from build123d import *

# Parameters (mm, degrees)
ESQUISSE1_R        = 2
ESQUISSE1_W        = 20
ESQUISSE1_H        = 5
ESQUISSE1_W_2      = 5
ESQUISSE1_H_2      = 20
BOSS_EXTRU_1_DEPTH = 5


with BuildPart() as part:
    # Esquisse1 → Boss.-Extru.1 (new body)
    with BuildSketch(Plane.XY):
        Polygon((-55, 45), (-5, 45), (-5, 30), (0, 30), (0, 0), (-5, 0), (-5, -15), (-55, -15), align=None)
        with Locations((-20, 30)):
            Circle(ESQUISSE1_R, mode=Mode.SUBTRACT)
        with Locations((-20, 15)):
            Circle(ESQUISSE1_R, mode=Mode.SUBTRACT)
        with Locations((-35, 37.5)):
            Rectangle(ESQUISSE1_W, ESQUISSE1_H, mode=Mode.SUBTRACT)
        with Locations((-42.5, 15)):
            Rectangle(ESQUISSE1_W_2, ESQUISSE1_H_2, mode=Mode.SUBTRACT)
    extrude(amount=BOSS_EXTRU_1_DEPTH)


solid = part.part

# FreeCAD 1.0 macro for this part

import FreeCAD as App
import Part
import Sketcher
Q = App.Units.Quantity

doc = App.newDocument("Part")
params = doc.addObject("Spreadsheet::Sheet", "Params")
for row, (alias, value) in enumerate([
    ("sketch1_diameter", "4 mm"),
    ("sketch1_width", "50 mm"),
    ("sketch1_width2", "5 mm"),
    ("sketch1_width3", "20 mm"),
    ("sketch1_height", "60 mm"),
    ("pad1_length", "5 mm"),
], start=1):
    params.set(f"A{row}", alias)
    params.set(f"B{row}", "=" + value)
    params.setAlias(f"B{row}", alias)

body = doc.addObject("PartDesign::Body", "Body")

sketch1 = doc.addObject("Sketcher::SketchObject", "Sketch")
body.addObject(sketch1)
sketch1.AttachmentSupport = (doc.XY_Plane, [""])
sketch1.MapMode = "FlatFace"
sketch1.addGeometry([
    Part.LineSegment(App.Vector(-5, 45, 0), App.Vector(-55, 45, 0)),
    Part.LineSegment(App.Vector(-55, 45, 0), App.Vector(-55, -15, 0)),
    Part.LineSegment(App.Vector(-55, -15, 0), App.Vector(-5, -15, 0)),
    Part.LineSegment(App.Vector(-5, -15, 0), App.Vector(-5, 0, 0)),
    Part.LineSegment(App.Vector(-5, 0, 0), App.Vector(0, 0, 0)),
    Part.LineSegment(App.Vector(0, 0, 0), App.Vector(0, 30, 0)),
    Part.LineSegment(App.Vector(0, 30, 0), App.Vector(-5, 30, 0)),
    Part.LineSegment(App.Vector(-5, 30, 0), App.Vector(-5, 45, 0)),
    Part.Circle(App.Vector(-20, 15, 0), App.Vector(0, 0, 1), 2),
    Part.LineSegment(App.Vector(-45, 5, 0), App.Vector(-45, 25, 0)),
    Part.LineSegment(App.Vector(-45, 25, 0), App.Vector(-40, 25, 0)),
    Part.LineSegment(App.Vector(-40, 25, 0), App.Vector(-40, 5, 0)),
    Part.LineSegment(App.Vector(-40, 5, 0), App.Vector(-45, 5, 0)),
    Part.Circle(App.Vector(-20, 30, 0), App.Vector(0, 0, 1), 2),
    Part.LineSegment(App.Vector(-45, 35, 0), App.Vector(-45, 40, 0)),
    Part.LineSegment(App.Vector(-45, 40, 0), App.Vector(-25, 40, 0)),
    Part.LineSegment(App.Vector(-25, 40, 0), App.Vector(-25, 35, 0)),
    Part.LineSegment(App.Vector(-25, 35, 0), App.Vector(-45, 35, 0)),
], False)
sketch1.addConstraint([
    Sketcher.Constraint("Coincident", 0, 2, 1, 1),
    Sketcher.Constraint("Coincident", 1, 2, 2, 1),
    Sketcher.Constraint("Coincident", 2, 2, 3, 1),
    Sketcher.Constraint("Coincident", 3, 2, 4, 1),
    Sketcher.Constraint("Coincident", 4, 2, 5, 1),
    Sketcher.Constraint("Coincident", 5, 2, 6, 1),
    Sketcher.Constraint("Coincident", 6, 2, 7, 1),
    Sketcher.Constraint("Coincident", 7, 2, 0, 1),
    Sketcher.Constraint("Coincident", 9, 2, 10, 1),
    Sketcher.Constraint("Coincident", 10, 2, 11, 1),
    Sketcher.Constraint("Coincident", 11, 2, 12, 1),
    Sketcher.Constraint("Coincident", 12, 2, 9, 1),
    Sketcher.Constraint("Coincident", 14, 2, 15, 1),
    Sketcher.Constraint("Coincident", 15, 2, 16, 1),
    Sketcher.Constraint("Coincident", 16, 2, 17, 1),
    Sketcher.Constraint("Coincident", 17, 2, 14, 1),
    Sketcher.Constraint("Horizontal", 0),
    Sketcher.Constraint("Vertical", 1),
    Sketcher.Constraint("Horizontal", 2),
    Sketcher.Constraint("Vertical", 3),
    Sketcher.Constraint("Horizontal", 4),
    Sketcher.Constraint("Vertical", 5),
    Sketcher.Constraint("Horizontal", 6),
    Sketcher.Constraint("Vertical", 7),
    Sketcher.Constraint("Vertical", 9),
    Sketcher.Constraint("Horizontal", 10),
    Sketcher.Constraint("Vertical", 11),
    Sketcher.Constraint("Horizontal", 12),
    Sketcher.Constraint("Vertical", 14),
    Sketcher.Constraint("Horizontal", 15),
    Sketcher.Constraint("Vertical", 16),
    Sketcher.Constraint("Horizontal", 17),
    Sketcher.Constraint("Coincident", 4, 2, -1, 1),
    Sketcher.Constraint("Equal", 8, 13),
    Sketcher.Constraint("Horizontal", 13, 3, 5, 2),
    Sketcher.Constraint("Vertical", 8, 3, 13, 3),
    Sketcher.Constraint("Vertical", 3, 2, 6, 2),
    Sketcher.Constraint("Vertical", 12, 2, 14, 2),
    Sketcher.Constraint("Equal", 6, 10),
    Sketcher.Constraint("Equal", 3, 7),
    Sketcher.Constraint("Equal", 17, 9),
    Sketcher.Constraint("Equal", 12, 14),
    Sketcher.Constraint("Diameter", 8, Q("4 mm")),
    Sketcher.Constraint("DistanceX", 0, 2, 0, 1, Q("50 mm")),
    Sketcher.Constraint("DistanceX", 4, 1, 4, 2, Q("5 mm")),
    Sketcher.Constraint("DistanceX", 15, 1, 15, 2, Q("20 mm")),
    Sketcher.Constraint("DistanceY", 1, 2, 1, 1, Q("60 mm")),
    Sketcher.Constraint("DistanceY", 3, 1, 3, 2, Q("15 mm")),
    Sketcher.Constraint("DistanceX", 8, 3, -1, 1, Q("20 mm")),
    Sketcher.Constraint("DistanceY", -1, 1, 8, 3, Q("15 mm")),
    Sketcher.Constraint("DistanceX", 9, 2, -1, 1, Q("45 mm")),
    Sketcher.Constraint("DistanceY", -1, 1, 9, 2, Q("25 mm")),
    Sketcher.Constraint("DistanceY", -1, 1, 14, 2, Q("40 mm")),
])
sketch1.setExpression("Constraints[42]", "Params.sketch1_diameter")
sketch1.setExpression("Constraints[43]", "Params.sketch1_width")
sketch1.setExpression("Constraints[44]", "Params.sketch1_width2")
sketch1.setExpression("Constraints[45]", "Params.sketch1_width3")
sketch1.setExpression("Constraints[46]", "Params.sketch1_height")
pad1 = doc.addObject("PartDesign::Pad", "Pad")
body.addObject(pad1)
pad1.Profile = sketch1
pad1.setExpression("Length", "Params.pad1_length")

doc.recompute()
